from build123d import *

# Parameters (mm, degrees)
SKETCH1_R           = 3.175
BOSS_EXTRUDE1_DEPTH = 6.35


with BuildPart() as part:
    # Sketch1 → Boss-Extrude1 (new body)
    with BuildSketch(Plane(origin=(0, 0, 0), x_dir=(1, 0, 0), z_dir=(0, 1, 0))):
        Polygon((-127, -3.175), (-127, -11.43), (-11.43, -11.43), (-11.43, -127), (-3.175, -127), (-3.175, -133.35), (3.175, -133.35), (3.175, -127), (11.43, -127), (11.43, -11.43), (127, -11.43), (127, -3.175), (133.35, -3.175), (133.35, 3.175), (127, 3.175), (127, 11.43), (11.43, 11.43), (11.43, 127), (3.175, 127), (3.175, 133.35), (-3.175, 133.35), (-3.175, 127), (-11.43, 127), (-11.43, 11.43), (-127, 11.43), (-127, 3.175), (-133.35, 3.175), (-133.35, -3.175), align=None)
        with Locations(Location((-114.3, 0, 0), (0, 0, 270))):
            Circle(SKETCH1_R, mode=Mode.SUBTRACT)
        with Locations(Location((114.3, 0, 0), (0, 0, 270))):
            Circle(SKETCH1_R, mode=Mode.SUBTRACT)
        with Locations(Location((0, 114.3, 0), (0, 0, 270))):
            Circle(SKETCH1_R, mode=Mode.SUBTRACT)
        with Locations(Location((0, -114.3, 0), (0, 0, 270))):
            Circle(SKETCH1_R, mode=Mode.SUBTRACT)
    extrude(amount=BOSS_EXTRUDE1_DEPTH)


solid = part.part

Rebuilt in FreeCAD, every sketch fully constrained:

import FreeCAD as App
import Part
import Sketcher

V = App.Vector
Q = App.Units.Quantity

doc = App.newDocument("Part")
body = doc.addObject("PartDesign::Body", "Body")

sketch1 = body.newObject("Sketcher::SketchObject", "Sketch")
sketch1.AttachmentSupport = (doc.getObject("XZ_Plane"), [""])
sketch1.MapMode = "FlatFace"
sketch1.addGeometry([
    Part.LineSegment(V(-127, 3.2, 0), V(-127, 11.4, 0)),
    Part.LineSegment(V(-127, 11.4, 0), V(-11.4, 11.4, 0)),
    Part.LineSegment(V(-11.4, 11.4, 0), V(-11.4, 127, 0)),
    Part.LineSegment(V(-11.4, 127, 0), V(-3.2, 127, 0)),
    Part.LineSegment(V(-3.2, 127, 0), V(-3.2, 133.3, 0)),
    Part.LineSegment(V(-3.2, 133.3, 0), V(3.2, 133.3, 0)),
    Part.LineSegment(V(3.2, 133.3, 0), V(3.2, 127, 0)),
    Part.LineSegment(V(3.2, 127, 0), V(11.4, 127, 0)),
    Part.LineSegment(V(11.4, 127, 0), V(11.4, 11.4, 0)),
    Part.LineSegment(V(11.4, 11.4, 0), V(127, 11.4, 0)),
    Part.LineSegment(V(127, 11.4, 0), V(127, 3.2, 0)),
    Part.LineSegment(V(127, 3.2, 0), V(133.3, 3.2, 0)),
    Part.LineSegment(V(133.3, 3.2, 0), V(133.3, -3.2, 0)),
    Part.LineSegment(V(133.3, -3.2, 0), V(127, -3.2, 0)),
    Part.LineSegment(V(127, -3.2, 0), V(127, -11.4, 0)),
    Part.LineSegment(V(127, -11.4, 0), V(11.4, -11.4, 0)),
    Part.LineSegment(V(11.4, -11.4, 0), V(11.4, -127, 0)),
    Part.LineSegment(V(11.4, -127, 0), V(3.2, -127, 0)),
    Part.LineSegment(V(3.2, -127, 0), V(3.2, -133.3, 0)),
    Part.LineSegment(V(3.2, -133.3, 0), V(-3.2, -133.3, 0)),
    Part.LineSegment(V(-3.2, -133.3, 0), V(-3.2, -127, 0)),
    Part.LineSegment(V(-3.2, -127, 0), V(-11.4, -127, 0)),
    Part.LineSegment(V(-11.4, -127, 0), V(-11.4, -11.4, 0)),
    Part.LineSegment(V(-11.4, -11.4, 0), V(-127, -11.4, 0)),
    Part.LineSegment(V(-127, -11.4, 0), V(-127, -3.2, 0)),
    Part.LineSegment(V(-127, -3.2, 0), V(-133.3, -3.2, 0)),
    Part.LineSegment(V(-133.3, -3.2, 0), V(-133.3, 3.2, 0)),
    Part.LineSegment(V(-133.3, 3.2, 0), V(-127, 3.2, 0)),
    Part.Circle(V(0, 114.3, 0), V(0, 0, 1), 3.2),
    Part.Circle(V(-114.3, 0, 0), V(0, 0, 1), 3.2),
    Part.Circle(V(114.3, 0, 0), V(0, 0, 1), 3.2),
    Part.Circle(V(0, -114.3, 0), V(0, 0, 1), 3.2),
], False)
sketch1.addConstraint([
    Sketcher.Constraint("Coincident", 0, 2, 1, 1),
    Sketcher.Constraint("Coincident", 1, 2, 2, 1),
    Sketcher.Constraint("Coincident", 2, 2, 3, 1),
    Sketcher.Constraint("Coincident", 3, 2, 4, 1),
    Sketcher.Constraint("Coincident", 4, 2, 5, 1),
    Sketcher.Constraint("Coincident", 5, 2, 6, 1),
    Sketcher.Constraint("Coincident", 6, 2, 7, 1),
    Sketcher.Constraint("Coincident", 7, 2, 8, 1),
    Sketcher.Constraint("Coincident", 8, 2, 9, 1),
    Sketcher.Constraint("Coincident", 9, 2, 10, 1),
    Sketcher.Constraint("Coincident", 10, 2, 11, 1),
    Sketcher.Constraint("Coincident", 11, 2, 12, 1),
    Sketcher.Constraint("Coincident", 12, 2, 13, 1),
    Sketcher.Constraint("Coincident", 13, 2, 14, 1),
    Sketcher.Constraint("Coincident", 14, 2, 15, 1),
    Sketcher.Constraint("Coincident", 15, 2, 16, 1),
    Sketcher.Constraint("Coincident", 16, 2, 17, 1),
    Sketcher.Constraint("Coincident", 17, 2, 18, 1),
    Sketcher.Constraint("Coincident", 18, 2, 19, 1),
    Sketcher.Constraint("Coincident", 19, 2, 20, 1),
    Sketcher.Constraint("Coincident", 20, 2, 21, 1),
    Sketcher.Constraint("Coincident", 21, 2, 22, 1),
    Sketcher.Constraint("Coincident", 22, 2, 23, 1),
    Sketcher.Constraint("Coincident", 23, 2, 24, 1),
    Sketcher.Constraint("Coincident", 24, 2, 25, 1),
    Sketcher.Constraint("Coincident", 25, 2, 26, 1),
    Sketcher.Constraint("Coincident", 26, 2, 27, 1),
    Sketcher.Constraint("Coincident", 27, 2, 0, 1),
    Sketcher.Constraint("Vertical", 0),
    Sketcher.Constraint("Horizontal", 1),
    Sketcher.Constraint("Vertical", 2),
    Sketcher.Constraint("Horizontal", 3),
    Sketcher.Constraint("Vertical", 4),
    Sketcher.Constraint("Horizontal", 5),
    Sketcher.Constraint("Vertical", 6),
    Sketcher.Constraint("Horizontal", 7),
    Sketcher.Constraint("Vertical", 8),
    Sketcher.Constraint("Horizontal", 9),
    Sketcher.Constraint("Vertical", 10),
    Sketcher.Constraint("Horizontal", 11),
    Sketcher.Constraint("Vertical", 12),
    Sketcher.Constraint("Horizontal", 13),
    Sketcher.Constraint("Vertical", 14),
    Sketcher.Constraint("Horizontal", 15),
    Sketcher.Constraint("Vertical", 16),
    Sketcher.Constraint("Horizontal", 17),
    Sketcher.Constraint("Vertical", 18),
    Sketcher.Constraint("Horizontal", 19),
    Sketcher.Constraint("Vertical", 20),
    Sketcher.Constraint("Horizontal", 21),
    Sketcher.Constraint("Vertical", 22),
    Sketcher.Constraint("Horizontal", 23),
    Sketcher.Constraint("Vertical", 24),
    Sketcher.Constraint("Horizontal", 25),
    Sketcher.Constraint("Vertical", 26),
    Sketcher.Constraint("Horizontal", 27),
    Sketcher.Constraint("Equal", 28, 29),
    Sketcher.Constraint("Equal", 29, 30),
    Sketcher.Constraint("Equal", 30, 31),
    Sketcher.Constraint("Symmetric", 29, 3, 30, 3, -1, 1),
    Sketcher.Constraint("Symmetric", 28, 3, 31, 3, -1, 1),
    Sketcher.Constraint("Symmetric", 0, 2, 14, 2, -1, 1),
    Sketcher.Constraint("Symmetric", 2, 2, 16, 2, -1, 1),
    Sketcher.Constraint("Symmetric", 4, 2, 18, 2, -1, 1),
    Sketcher.Constraint("Symmetric", 6, 2, 20, 2, -1, 1),
    Sketcher.Constraint("Symmetric", 8, 2, 22, 2, -1, 1),
    Sketcher.Constraint("Symmetric", 10, 2, 24, 2, -1, 1),
    Sketcher.Constraint("Symmetric", 12, 2, 26, 2, -1, 1),
    Sketcher.Constraint("Symmetric", 3, 2, 6, 2, -2),
    Sketcher.Constraint("Symmetric", 1, 2, 8, 2, -2),
    Sketcher.Constraint("Symmetric", 13, 2, 24, 2, -2),
    Sketcher.Constraint("PointOnObject", 28, 3, -2),
    Sketcher.Constraint("PointOnObject", 29, 3, -1),
    Sketcher.Constraint("Equal", 5, 11),
    Sketcher.Constraint("Equal", 21, 0),
    Sketcher.Constraint("Equal", 23, 2),
    Sketcher.Constraint("Equal", 27, 4),
    Sketcher.Constraint("Equal", 6, 12),
    Sketcher.Constraint("Diameter", 28, Q("0.25 in")),
    Sketcher.Constraint("DistanceX", 0, 2, -1, 1, Q("5 in")),
    Sketcher.Constraint("DistanceX", 29, 3, 30, 3, Q("9 in")),
    Sketcher.Constraint("DistanceY", 31, 3, 28, 3, Q("9 in")),
    Sketcher.Constraint("DistanceX", 1, 1, 1, 2, Q("4.55 in")),
    Sketcher.Constraint("DistanceX", 5, 1, 5, 2, Q("0.25 in")),
])
pad1 = body.newObject("PartDesign::Pad", "Pad")
pad1.Profile = sketch1
pad1.Length = Q("0.25 in")
pad1.Reversed = True

doc.recompute()
